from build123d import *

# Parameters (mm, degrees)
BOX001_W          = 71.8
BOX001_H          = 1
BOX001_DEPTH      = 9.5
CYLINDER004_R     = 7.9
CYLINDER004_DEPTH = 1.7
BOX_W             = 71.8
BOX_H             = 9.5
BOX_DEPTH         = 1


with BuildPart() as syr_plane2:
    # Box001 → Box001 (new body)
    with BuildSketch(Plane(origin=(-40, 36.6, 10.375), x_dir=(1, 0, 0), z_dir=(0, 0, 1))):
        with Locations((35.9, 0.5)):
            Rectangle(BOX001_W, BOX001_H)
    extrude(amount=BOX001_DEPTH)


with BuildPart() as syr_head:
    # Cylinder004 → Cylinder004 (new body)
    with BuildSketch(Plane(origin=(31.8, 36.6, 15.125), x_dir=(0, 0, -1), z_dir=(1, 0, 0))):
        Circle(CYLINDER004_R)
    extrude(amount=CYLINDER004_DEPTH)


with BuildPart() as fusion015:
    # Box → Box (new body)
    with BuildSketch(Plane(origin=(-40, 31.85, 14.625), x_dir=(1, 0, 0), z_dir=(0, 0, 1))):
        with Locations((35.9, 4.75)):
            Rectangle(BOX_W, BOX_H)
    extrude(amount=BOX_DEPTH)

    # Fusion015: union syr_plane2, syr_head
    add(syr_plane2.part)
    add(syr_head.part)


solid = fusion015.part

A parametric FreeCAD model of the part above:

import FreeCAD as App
import Part
import Sketcher
from FreeCAD import Vector

doc = App.newDocument("Part")
params = doc.addObject("Spreadsheet::Sheet", "Params")
for row, (alias, value) in enumerate([
    ("sketch1_height", "1 mm"),
    ("sketch1_width", "71.8 mm"),
    ("pad1_length", "9.5 mm"),
    ("sketch2_diameter", "15.8 mm"),
    ("pad2_length", "1.7 mm"),
    ("sketch3_width", "71.8 mm"),
    ("sketch3_height", "9.5 mm"),
    ("pad3_length", "1 mm"),
], start=1):
    params.set(f"A{row}", alias)
    params.set(f"B{row}", "=" + value)
    params.setAlias(f"B{row}", alias)

body = doc.addObject("PartDesign::Body", "Body")

# Sketch on XY plane
sketch1 = body.newObject("Sketcher::SketchObject", "Sketch")
sketch1.AttachmentSupport = (doc.getObject("XY_Plane"), [""])
sketch1.MapMode = "FlatFace"
sketch1.AttachmentOffset = App.Placement(Vector(0, 0, 10.375), App.Rotation())
sketch1.addGeometry([
    Part.LineSegment(Vector(-40, 37.6, 0), Vector(-40, 36.6, 0)),
    Part.LineSegment(Vector(-40, 36.6, 0), Vector(31.8, 36.6, 0)),
    Part.LineSegment(Vector(31.8, 36.6, 0), Vector(31.8, 37.6, 0)),
    Part.LineSegment(Vector(31.8, 37.6, 0), Vector(-40, 37.6, 0)),
], False)
sketch1.addConstraint([
    Sketcher.Constraint("Coincident", 0, 2, 1, 1),
    Sketcher.Constraint("Coincident", 1, 2, 2, 1),
    Sketcher.Constraint("Coincident", 2, 2, 3, 1),
    Sketcher.Constraint("Coincident", 3, 2, 0, 1),
    Sketcher.Constraint("Vertical", 0),
    Sketcher.Constraint("Horizontal", 1),
    Sketcher.Constraint("Vertical", 2),
    Sketcher.Constraint("Horizontal", 3),
    Sketcher.Constraint("DistanceY", 0, 2, 0, 1, 1.0),
    Sketcher.Constraint("DistanceX", 1, 1, 1, 2, 71.8),
    Sketcher.Constraint("DistanceX", 0, 2, -1, 1, 40.0),
    Sketcher.Constraint("DistanceY", -1, 1, 0, 2, 36.6),
])
sketch1.setExpression("Constraints[8]", "Params.sketch1_height")
sketch1.setExpression("Constraints[9]", "Params.sketch1_width")
pad1 = body.newObject("PartDesign::Pad", "Pad")
pad1.Profile = sketch1
pad1.setExpression("Length", "Params.pad1_length")
body2 = doc.addObject("PartDesign::Body", "Body001")

# Sketch on YZ plane
sketch2 = body2.newObject("Sketcher::SketchObject", "Sketch001")
sketch2.AttachmentSupport = (doc.getObject("YZ_Plane001"), [""])
sketch2.MapMode = "FlatFace"
sketch2.AttachmentOffset = App.Placement(Vector(0, 0, 31.8), App.Rotation())
sketch2.addGeometry(Part.Circle(Vector(37, 15, 0), Vector(0, 0, 1), 8), False)
sketch2.addConstraint([
    Sketcher.Constraint("Diameter", 0, 15.8),
    Sketcher.Constraint("DistanceX", -1, 1, 0, 3, 36.6),
    Sketcher.Constraint("DistanceY", -1, 1, 0, 3, 15.125),
])
sketch2.setExpression("Constraints[0]", "Params.sketch2_diameter")
pad2 = body2.newObject("PartDesign::Pad", "Pad001")
pad2.Profile = sketch2
pad2.setExpression("Length", "Params.pad2_length")
body3 = doc.addObject("PartDesign::Body", "Body002")

# Sketch on XY plane
sketch3 = body3.newObject("Sketcher::SketchObject", "Sketch002")
sketch3.AttachmentSupport = (doc.getObject("XY_Plane002"), [""])
sketch3.MapMode = "FlatFace"
sketch3.AttachmentOffset = App.Placement(Vector(0, 0, 14.625), App.Rotation())
sketch3.addGeometry([
    Part.LineSegment(Vector(-40, 41, 0), Vector(-40, 32, 0)),
    Part.LineSegment(Vector(-40, 32, 0), Vector(32, 32, 0)),
    Part.LineSegment(Vector(32, 32, 0), Vector(32, 41, 0)),
    Part.LineSegment(Vector(32, 41, 0), Vector(-40, 41, 0)),
], False)
sketch3.addConstraint([
    Sketcher.Constraint("Coincident", 0, 2, 1, 1),
    Sketcher.Constraint("Coincident", 1, 2, 2, 1),
    Sketcher.Constraint("Coincident", 2, 2, 3, 1),
    Sketcher.Constraint("Coincident", 3, 2, 0, 1),
    Sketcher.Constraint("Vertical", 0),
    Sketcher.Constraint("Horizontal", 1),
    Sketcher.Constraint("Vertical", 2),
    Sketcher.Constraint("Horizontal", 3),
    Sketcher.Constraint("DistanceX", 1, 1, 1, 2, 71.8),
    Sketcher.Constraint("DistanceY", 0, 2, 0, 1, 9.5),
    Sketcher.Constraint("DistanceX", 0, 2, -1, 1, 40.0),
    Sketcher.Constraint("DistanceY", -1, 1, 0, 2, 31.85),
])
sketch3.setExpression("Constraints[8]", "Params.sketch3_width")
sketch3.setExpression("Constraints[9]", "Params.sketch3_height")
pad3 = body3.newObject("PartDesign::Pad", "Pad002")
pad3.Profile = sketch3
pad3.setExpression("Length", "Params.pad3_length")
doc.recompute()

boolean = body3.newObject("PartDesign::Boolean", "Boolean")
boolean.Type = "Fuse"
boolean.addObjects([body])
doc.recompute()

boolean2 = body3.newObject("PartDesign::Boolean", "Boolean001")
boolean2.Type = "Fuse"
boolean2.addObjects([body2])

doc.recompute()
